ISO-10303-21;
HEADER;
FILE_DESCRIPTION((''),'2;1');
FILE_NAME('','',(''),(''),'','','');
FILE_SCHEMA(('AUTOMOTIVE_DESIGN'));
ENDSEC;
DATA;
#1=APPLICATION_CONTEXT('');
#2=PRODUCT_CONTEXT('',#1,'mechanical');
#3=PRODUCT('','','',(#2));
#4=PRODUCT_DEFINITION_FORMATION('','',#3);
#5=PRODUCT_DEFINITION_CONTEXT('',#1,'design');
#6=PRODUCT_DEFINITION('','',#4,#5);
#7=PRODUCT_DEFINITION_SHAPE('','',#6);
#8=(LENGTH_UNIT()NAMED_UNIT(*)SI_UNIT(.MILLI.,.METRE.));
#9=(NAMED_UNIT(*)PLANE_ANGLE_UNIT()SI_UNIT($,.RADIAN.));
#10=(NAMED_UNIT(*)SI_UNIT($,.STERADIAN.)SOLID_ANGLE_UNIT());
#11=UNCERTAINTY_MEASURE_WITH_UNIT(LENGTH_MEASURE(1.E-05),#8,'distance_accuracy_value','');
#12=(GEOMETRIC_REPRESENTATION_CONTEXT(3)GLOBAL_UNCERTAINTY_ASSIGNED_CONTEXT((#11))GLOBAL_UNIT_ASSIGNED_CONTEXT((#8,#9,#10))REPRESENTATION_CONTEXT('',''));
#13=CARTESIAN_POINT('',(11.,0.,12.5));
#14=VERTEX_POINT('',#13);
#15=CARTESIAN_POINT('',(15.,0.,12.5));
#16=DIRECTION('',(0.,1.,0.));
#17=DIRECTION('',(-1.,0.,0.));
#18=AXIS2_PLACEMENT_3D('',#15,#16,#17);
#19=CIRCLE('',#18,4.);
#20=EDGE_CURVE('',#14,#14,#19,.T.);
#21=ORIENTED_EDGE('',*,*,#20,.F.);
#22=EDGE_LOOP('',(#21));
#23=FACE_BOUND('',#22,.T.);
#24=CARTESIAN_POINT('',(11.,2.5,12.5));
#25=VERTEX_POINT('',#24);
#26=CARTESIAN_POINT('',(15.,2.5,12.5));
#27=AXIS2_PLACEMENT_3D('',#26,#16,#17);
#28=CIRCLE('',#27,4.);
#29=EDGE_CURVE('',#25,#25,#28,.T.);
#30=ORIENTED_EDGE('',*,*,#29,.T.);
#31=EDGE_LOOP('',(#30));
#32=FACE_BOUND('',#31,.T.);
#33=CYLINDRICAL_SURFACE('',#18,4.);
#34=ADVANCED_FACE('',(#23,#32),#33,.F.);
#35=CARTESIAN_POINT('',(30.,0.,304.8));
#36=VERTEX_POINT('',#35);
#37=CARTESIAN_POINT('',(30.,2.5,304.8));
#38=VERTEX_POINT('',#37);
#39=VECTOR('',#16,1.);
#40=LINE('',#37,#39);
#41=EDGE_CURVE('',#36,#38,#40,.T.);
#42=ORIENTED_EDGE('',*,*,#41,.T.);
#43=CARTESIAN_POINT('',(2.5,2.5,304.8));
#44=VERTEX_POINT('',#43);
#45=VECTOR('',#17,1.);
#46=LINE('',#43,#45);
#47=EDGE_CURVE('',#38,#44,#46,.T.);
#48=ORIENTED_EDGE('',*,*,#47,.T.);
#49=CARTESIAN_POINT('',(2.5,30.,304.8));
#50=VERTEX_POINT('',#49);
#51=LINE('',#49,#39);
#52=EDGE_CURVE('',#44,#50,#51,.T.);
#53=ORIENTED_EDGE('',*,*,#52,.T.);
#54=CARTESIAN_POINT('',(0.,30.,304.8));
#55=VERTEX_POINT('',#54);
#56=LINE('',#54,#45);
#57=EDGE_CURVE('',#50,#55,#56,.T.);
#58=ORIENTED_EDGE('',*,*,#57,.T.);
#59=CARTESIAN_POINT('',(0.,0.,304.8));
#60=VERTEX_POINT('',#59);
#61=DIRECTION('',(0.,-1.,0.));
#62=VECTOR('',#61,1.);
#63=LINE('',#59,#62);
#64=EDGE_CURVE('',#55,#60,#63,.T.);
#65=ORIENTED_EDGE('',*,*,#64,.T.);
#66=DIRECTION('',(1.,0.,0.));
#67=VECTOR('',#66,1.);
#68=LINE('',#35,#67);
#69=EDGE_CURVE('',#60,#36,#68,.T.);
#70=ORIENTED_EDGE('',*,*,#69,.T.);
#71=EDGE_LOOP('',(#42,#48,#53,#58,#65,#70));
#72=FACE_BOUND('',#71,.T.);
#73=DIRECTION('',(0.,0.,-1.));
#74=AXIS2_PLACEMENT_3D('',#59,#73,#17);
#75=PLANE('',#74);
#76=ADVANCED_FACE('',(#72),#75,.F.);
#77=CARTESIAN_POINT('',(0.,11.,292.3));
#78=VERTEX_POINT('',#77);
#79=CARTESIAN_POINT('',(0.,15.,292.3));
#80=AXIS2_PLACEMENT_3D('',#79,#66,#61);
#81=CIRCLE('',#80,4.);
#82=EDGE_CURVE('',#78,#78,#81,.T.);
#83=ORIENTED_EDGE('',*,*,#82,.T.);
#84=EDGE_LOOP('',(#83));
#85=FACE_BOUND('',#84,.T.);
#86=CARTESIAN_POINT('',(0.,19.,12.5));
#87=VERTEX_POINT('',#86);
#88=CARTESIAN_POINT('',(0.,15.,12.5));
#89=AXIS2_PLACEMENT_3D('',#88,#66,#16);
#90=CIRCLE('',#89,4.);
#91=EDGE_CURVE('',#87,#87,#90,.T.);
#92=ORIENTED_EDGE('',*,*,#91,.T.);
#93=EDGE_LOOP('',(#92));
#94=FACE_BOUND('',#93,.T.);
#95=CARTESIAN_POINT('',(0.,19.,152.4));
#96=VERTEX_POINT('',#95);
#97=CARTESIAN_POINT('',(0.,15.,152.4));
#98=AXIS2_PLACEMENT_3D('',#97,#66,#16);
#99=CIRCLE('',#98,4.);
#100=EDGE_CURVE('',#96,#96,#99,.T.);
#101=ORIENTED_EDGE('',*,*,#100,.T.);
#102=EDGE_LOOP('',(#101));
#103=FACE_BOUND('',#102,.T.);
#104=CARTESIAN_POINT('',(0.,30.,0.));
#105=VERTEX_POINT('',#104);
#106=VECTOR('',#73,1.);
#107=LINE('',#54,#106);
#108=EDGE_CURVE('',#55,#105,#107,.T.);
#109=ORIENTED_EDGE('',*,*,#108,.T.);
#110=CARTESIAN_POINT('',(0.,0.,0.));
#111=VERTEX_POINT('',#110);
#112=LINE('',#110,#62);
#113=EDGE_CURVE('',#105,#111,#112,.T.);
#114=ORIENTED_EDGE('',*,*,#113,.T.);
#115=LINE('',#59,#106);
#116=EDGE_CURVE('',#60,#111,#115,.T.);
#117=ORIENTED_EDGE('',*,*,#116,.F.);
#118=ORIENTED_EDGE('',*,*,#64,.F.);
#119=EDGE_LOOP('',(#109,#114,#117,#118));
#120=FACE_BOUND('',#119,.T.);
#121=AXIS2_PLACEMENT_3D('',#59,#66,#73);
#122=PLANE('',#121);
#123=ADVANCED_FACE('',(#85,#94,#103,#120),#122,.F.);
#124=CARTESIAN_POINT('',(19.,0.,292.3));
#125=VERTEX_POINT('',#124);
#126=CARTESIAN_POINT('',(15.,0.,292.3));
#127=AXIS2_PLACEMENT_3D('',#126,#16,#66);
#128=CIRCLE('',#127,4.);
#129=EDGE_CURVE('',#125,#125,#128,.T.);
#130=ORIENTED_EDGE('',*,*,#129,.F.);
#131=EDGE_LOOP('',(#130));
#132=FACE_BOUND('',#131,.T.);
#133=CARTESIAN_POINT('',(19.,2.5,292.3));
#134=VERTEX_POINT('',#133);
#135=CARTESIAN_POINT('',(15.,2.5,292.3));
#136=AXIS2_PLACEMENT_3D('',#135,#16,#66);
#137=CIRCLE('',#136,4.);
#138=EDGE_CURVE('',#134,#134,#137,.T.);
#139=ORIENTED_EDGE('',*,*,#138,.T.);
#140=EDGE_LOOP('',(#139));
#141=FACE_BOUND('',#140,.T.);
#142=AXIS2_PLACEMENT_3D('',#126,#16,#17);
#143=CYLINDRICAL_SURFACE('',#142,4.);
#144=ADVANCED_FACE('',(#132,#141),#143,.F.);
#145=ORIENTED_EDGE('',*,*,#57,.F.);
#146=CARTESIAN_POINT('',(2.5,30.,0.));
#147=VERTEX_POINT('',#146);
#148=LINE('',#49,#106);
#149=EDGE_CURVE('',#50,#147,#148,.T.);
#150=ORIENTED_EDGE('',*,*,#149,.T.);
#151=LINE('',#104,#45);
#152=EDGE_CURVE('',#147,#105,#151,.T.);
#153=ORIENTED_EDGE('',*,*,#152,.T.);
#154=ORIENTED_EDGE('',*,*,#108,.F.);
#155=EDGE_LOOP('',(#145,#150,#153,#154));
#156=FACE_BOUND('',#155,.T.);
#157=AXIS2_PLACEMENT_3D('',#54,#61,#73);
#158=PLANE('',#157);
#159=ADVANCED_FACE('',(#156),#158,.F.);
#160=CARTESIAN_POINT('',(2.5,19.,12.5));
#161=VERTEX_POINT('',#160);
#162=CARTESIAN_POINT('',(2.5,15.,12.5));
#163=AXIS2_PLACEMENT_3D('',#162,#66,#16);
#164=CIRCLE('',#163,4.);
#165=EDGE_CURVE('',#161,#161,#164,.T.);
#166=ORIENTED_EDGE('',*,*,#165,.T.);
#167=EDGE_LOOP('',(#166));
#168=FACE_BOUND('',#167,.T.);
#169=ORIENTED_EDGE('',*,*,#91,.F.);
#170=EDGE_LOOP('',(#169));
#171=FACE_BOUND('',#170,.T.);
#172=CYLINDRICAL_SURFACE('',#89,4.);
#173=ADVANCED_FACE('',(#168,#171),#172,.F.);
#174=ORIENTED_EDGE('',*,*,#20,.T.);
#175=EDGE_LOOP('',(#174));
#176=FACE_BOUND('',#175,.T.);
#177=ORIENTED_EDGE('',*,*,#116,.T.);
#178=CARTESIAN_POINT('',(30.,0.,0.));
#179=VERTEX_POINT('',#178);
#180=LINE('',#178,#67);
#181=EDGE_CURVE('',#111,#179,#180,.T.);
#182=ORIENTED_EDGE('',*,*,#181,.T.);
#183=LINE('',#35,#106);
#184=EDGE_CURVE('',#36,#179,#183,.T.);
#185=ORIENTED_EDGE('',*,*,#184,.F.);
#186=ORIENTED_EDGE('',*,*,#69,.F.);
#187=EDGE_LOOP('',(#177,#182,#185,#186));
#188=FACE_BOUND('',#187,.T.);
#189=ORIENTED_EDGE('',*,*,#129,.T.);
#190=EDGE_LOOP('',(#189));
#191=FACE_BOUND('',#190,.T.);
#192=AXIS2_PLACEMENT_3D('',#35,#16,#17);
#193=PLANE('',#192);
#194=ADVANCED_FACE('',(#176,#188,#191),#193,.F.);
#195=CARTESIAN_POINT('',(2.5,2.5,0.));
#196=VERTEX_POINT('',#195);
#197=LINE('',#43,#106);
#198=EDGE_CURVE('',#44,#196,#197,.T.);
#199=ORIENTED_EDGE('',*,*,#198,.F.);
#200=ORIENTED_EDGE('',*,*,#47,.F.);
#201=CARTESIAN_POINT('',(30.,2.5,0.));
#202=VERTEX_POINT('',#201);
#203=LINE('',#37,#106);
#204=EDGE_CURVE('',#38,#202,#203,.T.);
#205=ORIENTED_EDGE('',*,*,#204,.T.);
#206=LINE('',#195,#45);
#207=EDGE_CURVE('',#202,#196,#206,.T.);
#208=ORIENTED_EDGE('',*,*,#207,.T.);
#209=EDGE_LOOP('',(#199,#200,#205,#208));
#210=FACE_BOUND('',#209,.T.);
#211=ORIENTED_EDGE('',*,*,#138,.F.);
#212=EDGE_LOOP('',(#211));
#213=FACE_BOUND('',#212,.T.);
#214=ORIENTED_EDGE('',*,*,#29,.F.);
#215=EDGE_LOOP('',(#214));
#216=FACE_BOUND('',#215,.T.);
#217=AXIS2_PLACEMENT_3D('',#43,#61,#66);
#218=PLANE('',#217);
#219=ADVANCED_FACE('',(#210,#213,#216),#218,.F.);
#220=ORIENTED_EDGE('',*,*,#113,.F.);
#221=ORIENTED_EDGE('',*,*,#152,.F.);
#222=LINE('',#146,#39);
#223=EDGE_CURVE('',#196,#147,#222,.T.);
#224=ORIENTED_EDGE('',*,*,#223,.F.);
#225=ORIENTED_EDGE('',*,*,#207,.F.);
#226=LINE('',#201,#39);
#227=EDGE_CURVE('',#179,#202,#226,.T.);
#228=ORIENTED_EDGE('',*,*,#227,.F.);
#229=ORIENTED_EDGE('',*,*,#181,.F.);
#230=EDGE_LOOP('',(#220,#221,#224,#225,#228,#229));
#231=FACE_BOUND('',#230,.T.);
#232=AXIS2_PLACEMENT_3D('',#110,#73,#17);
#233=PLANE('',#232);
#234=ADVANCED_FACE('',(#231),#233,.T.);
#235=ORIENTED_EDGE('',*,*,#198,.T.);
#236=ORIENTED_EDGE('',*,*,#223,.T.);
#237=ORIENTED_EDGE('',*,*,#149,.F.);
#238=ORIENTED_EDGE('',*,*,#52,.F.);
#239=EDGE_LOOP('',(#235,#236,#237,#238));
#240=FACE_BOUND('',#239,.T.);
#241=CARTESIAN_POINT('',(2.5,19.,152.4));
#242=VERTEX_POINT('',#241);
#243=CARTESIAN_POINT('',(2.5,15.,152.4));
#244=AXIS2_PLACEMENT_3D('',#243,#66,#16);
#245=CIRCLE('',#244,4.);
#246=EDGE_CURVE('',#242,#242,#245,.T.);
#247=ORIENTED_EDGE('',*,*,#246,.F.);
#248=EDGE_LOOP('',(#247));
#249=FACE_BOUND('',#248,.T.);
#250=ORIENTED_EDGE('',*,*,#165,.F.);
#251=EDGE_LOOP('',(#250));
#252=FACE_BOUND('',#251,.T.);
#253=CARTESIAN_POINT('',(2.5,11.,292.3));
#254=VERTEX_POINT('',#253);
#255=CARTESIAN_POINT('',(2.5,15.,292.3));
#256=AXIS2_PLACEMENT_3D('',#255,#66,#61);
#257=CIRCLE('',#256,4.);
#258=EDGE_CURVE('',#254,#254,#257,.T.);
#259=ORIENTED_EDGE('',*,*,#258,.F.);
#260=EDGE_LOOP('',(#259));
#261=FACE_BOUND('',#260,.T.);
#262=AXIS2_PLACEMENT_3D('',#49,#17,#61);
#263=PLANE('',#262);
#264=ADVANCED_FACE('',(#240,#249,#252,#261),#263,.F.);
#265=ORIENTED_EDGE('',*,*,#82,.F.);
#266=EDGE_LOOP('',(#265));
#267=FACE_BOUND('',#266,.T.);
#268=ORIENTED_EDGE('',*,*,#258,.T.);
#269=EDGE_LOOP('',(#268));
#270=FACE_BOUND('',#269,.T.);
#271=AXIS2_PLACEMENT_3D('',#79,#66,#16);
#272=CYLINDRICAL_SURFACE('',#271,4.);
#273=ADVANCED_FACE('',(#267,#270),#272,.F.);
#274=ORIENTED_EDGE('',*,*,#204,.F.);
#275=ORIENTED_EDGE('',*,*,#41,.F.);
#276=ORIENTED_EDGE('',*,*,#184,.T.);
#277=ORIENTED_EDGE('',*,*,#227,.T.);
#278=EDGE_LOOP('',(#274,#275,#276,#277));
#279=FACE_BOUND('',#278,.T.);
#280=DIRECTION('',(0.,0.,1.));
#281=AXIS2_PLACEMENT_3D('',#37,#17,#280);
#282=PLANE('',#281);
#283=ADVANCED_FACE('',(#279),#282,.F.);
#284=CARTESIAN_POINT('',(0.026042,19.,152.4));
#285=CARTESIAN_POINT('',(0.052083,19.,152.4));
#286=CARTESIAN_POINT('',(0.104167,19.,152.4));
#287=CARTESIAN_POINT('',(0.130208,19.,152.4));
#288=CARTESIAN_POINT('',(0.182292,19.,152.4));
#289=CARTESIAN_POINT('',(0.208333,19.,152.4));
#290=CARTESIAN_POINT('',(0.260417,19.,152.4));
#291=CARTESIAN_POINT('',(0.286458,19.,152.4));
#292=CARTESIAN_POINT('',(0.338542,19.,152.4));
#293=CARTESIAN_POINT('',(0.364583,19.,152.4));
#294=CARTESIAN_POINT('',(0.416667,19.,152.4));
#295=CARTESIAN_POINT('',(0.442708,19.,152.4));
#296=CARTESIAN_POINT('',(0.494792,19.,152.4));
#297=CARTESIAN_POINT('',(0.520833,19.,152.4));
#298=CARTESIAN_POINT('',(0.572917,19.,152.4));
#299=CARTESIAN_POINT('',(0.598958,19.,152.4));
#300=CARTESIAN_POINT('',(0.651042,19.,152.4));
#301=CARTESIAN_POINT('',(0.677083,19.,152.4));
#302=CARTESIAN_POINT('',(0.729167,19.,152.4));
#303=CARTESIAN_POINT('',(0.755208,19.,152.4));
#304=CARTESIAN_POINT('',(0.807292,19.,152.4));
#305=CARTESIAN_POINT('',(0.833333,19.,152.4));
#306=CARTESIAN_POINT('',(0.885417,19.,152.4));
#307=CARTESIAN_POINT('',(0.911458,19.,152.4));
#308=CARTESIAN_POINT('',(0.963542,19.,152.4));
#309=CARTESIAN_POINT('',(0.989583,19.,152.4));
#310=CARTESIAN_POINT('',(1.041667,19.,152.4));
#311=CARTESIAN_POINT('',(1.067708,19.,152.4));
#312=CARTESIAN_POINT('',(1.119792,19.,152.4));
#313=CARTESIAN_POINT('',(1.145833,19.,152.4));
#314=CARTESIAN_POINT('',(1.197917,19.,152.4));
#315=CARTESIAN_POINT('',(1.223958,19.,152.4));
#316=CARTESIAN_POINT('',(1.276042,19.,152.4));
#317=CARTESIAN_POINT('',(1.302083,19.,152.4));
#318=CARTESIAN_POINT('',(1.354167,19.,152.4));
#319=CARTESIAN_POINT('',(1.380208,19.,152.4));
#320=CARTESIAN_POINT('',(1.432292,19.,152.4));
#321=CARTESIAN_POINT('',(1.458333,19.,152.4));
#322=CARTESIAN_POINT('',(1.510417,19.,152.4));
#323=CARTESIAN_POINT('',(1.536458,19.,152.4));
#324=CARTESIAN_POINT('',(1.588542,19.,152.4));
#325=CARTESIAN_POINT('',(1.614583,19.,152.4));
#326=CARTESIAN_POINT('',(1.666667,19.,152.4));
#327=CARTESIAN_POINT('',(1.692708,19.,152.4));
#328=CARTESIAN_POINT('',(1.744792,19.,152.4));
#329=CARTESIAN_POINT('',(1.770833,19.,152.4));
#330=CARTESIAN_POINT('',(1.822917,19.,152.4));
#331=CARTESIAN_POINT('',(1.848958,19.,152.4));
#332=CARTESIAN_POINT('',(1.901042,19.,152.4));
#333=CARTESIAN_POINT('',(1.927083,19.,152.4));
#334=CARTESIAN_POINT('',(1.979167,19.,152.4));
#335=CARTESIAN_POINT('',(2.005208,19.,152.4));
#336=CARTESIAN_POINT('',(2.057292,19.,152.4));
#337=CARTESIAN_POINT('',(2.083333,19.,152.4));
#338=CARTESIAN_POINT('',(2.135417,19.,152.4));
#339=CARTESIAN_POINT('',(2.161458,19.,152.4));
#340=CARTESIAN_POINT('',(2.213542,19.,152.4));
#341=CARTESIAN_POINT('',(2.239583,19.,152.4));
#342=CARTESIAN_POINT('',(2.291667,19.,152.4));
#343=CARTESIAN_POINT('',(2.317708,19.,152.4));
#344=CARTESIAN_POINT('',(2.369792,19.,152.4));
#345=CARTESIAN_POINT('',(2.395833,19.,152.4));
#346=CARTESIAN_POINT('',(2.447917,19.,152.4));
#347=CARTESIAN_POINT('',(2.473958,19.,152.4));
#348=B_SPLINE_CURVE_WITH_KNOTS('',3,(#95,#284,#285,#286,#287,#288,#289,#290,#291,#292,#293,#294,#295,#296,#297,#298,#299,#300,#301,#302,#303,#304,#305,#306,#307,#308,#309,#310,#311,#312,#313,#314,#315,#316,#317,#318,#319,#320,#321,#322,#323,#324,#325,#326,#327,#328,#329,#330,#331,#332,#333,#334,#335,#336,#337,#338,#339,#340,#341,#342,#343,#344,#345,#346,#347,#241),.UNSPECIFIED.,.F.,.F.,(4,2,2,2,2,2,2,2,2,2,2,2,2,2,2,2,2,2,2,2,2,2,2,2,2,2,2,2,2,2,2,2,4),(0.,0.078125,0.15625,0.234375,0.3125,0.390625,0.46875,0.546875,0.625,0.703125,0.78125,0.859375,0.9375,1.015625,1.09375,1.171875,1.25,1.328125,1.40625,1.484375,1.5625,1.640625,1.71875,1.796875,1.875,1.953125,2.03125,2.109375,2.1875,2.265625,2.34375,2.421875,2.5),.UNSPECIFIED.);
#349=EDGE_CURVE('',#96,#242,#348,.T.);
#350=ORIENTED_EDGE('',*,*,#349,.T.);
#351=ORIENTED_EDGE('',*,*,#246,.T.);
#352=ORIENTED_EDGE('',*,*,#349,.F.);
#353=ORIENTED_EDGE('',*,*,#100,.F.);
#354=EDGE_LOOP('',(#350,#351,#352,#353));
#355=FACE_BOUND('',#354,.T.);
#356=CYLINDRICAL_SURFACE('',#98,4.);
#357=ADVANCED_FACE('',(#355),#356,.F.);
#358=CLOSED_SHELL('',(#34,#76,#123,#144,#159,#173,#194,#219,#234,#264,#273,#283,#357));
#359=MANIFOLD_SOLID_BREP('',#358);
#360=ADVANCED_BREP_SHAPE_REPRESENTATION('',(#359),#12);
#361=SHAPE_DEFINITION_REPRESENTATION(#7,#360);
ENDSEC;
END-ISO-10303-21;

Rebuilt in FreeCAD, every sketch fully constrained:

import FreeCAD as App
import Part
import Sketcher
Q = App.Units.Quantity


def add_polygon(sketch, points):
    """Adds a closed chain of lines whose ends are joined by coincident constraints."""
    first, n = sketch.GeometryCount, len(points)
    for a, b in zip(points, points[1:] + points[:1]):
        sketch.addGeometry(Part.LineSegment(App.Vector(*a, 0), App.Vector(*b, 0)), False)
    for i in range(n):
        sketch.addConstraint(Sketcher.Constraint("Coincident", first + i, 2, first + (i + 1) % n, 1))

doc = App.newDocument("Part")
params = doc.addObject("Spreadsheet::Sheet", "Params")
for row, (alias, value) in enumerate([
    ("sketch1_width", "30 mm"),
    ("sketch1_width2", "27.5 mm"),
    ("pad1_length", "304.8 mm"),
    ("sketch2_diameter", "8 mm"),
    ("sketch3_diameter", "8 mm"),
    ("sketch4_diameter", "8 mm"),
], start=1):
    params.set(f"A{row}", alias)
    params.set(f"B{row}", "=" + value)
    params.setAlias(f"B{row}", alias)

body = doc.addObject("PartDesign::Body", "Body")

# Sketch on XY plane
sketch1 = body.newObject("Sketcher::SketchObject", "Sketch")
sketch1.AttachmentSupport = (doc.getObject("XY_Plane"), [""])
sketch1.MapMode = "FlatFace"
add_polygon(sketch1, [(0, 30), (0, 0), (30, 0), (30, 2.5), (2.5, 2.5), (2.5, 30)])  # lines 0-5
sketch1.addConstraint(Sketcher.Constraint("Vertical", 0))
sketch1.addConstraint(Sketcher.Constraint("Horizontal", 1))
sketch1.addConstraint(Sketcher.Constraint("Vertical", 2))
sketch1.addConstraint(Sketcher.Constraint("Horizontal", 3))
sketch1.addConstraint(Sketcher.Constraint("Vertical", 4))
sketch1.addConstraint(Sketcher.Constraint("Horizontal", 5))
sketch1.addConstraint(Sketcher.Constraint("Coincident", 0, 2, -1, 1))
sketch1.addConstraint(Sketcher.Constraint("Equal", 1, 0))
sketch1.addConstraint(Sketcher.Constraint("Equal", 5, 2))
sketch1.addConstraint(Sketcher.Constraint("DistanceX", 1, 1, 1, 2, Q("30 mm")))
sketch1.addConstraint(Sketcher.Constraint("DistanceX", 3, 2, 3, 1, Q("27.5 mm")))
sketch1.setExpression("Constraints[15]", "Params.sketch1_width")
sketch1.setExpression("Constraints[16]", "Params.sketch1_width2")
pad1 = body.newObject("PartDesign::Pad", "Pad")
pad1.Profile = sketch1
pad1.setExpression("Length", "Params.pad1_length")

# Sketch on XZ plane
sketch2 = body.newObject("Sketcher::SketchObject", "Sketch001")
sketch2.AttachmentSupport = (doc.getObject("XZ_Plane"), [""])
sketch2.MapMode = "FlatFace"
sketch2.AttachmentOffset = App.Placement(App.Vector(0, 0, -2.5), App.Rotation())
sketch2.addGeometry(Part.Circle(App.Vector(15, 12.5, 0), App.Vector(0, 0, 1), 4), False)
sketch2.addGeometry(Part.Circle(App.Vector(15, 292.3, 0), App.Vector(0, 0, 1), 4), False)
sketch2.addConstraint(Sketcher.Constraint("Equal", 0, 1))
sketch2.addConstraint(Sketcher.Constraint("Vertical", 0, 3, 1, 3))
sketch2.addConstraint(Sketcher.Constraint("Diameter", 0, Q("8 mm")))
sketch2.addConstraint(Sketcher.Constraint("DistanceX", -1, 1, 0, 3, Q("15 mm")))
sketch2.addConstraint(Sketcher.Constraint("DistanceY", -1, 1, 0, 3, Q("12.5 mm")))
sketch2.addConstraint(Sketcher.Constraint("DistanceY", -1, 1, 1, 3, Q("292.3 mm")))
sketch2.setExpression("Constraints[2]", "Params.sketch2_diameter")
pocket1 = body.newObject("PartDesign::Pocket", "Pocket")
pocket1.Profile = sketch2
pocket1.Type = "ThroughAll"
pocket1.Reversed = True

# Sketch on YZ plane
sketch3 = body.newObject("Sketcher::SketchObject", "Sketch002")
sketch3.AttachmentSupport = (doc.getObject("YZ_Plane"), [""])
sketch3.MapMode = "FlatFace"
sketch3.AttachmentOffset = App.Placement(App.Vector(0, 0, 2.5), App.Rotation())
sketch3.addGeometry(Part.Circle(App.Vector(15, 12.5, 0), App.Vector(0, 0, 1), 4), False)
sketch3.addGeometry(Part.Circle(App.Vector(15, 292.3, 0), App.Vector(0, 0, 1), 4), False)
sketch3.addConstraint(Sketcher.Constraint("Equal", 0, 1))
sketch3.addConstraint(Sketcher.Constraint("Vertical", 0, 3, 1, 3))
sketch3.addConstraint(Sketcher.Constraint("Diameter", 0, Q("8 mm")))
sketch3.addConstraint(Sketcher.Constraint("DistanceX", -1, 1, 0, 3, Q("15 mm")))
sketch3.addConstraint(Sketcher.Constraint("DistanceY", -1, 1, 0, 3, Q("12.5 mm")))
sketch3.addConstraint(Sketcher.Constraint("DistanceY", -1, 1, 1, 3, Q("292.3 mm")))
sketch3.setExpression("Constraints[2]", "Params.sketch3_diameter")
pocket2 = body.newObject("PartDesign::Pocket", "Pocket001")
pocket2.Profile = sketch3
pocket2.Type = "ThroughAll"

# Sketch on YZ plane
sketch4 = body.newObject("Sketcher::SketchObject", "Sketch003")
sketch4.AttachmentSupport = (doc.getObject("YZ_Plane"), [""])
sketch4.MapMode = "FlatFace"
sketch4.AttachmentOffset = App.Placement(App.Vector(0, 0, 2.5), App.Rotation())
sketch4.addGeometry(Part.Circle(App.Vector(15, 152.4, 0), App.Vector(0, 0, 1), 4), False)
sketch4.addConstraint(Sketcher.Constraint("Diameter", 0, Q("8 mm")))
sketch4.addConstraint(Sketcher.Constraint("DistanceX", -1, 1, 0, 3, Q("15 mm")))
sketch4.addConstraint(Sketcher.Constraint("DistanceY", -1, 1, 0, 3, Q("152.4 mm")))
sketch4.setExpression("Constraints[0]", "Params.sketch4_diameter")
pocket3 = body.newObject("PartDesign::Pocket", "Pocket002")
pocket3.Profile = sketch4
pocket3.Type = "ThroughAll"

doc.recompute()
